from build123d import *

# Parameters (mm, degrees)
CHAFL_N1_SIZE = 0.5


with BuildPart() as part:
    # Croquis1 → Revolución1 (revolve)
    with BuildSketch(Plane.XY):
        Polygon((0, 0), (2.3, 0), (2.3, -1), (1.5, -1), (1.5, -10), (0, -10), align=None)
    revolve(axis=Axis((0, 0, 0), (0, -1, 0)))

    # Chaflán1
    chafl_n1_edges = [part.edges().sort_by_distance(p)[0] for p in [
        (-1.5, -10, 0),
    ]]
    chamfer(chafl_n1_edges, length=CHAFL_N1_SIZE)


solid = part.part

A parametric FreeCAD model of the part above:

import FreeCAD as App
import Part
import Sketcher


def edges_at(feature, points):
    """Names of the edges that pass closest to the given points."""
    edges = feature.Shape.Edges
    near = lambda p: min(range(len(edges)), key=lambda i: edges[i].distToShape(Part.Vertex(*p))[0])
    return sorted({f"Edge{near(p) + 1}" for p in points})

doc = App.newDocument("Part")
body = doc.addObject("PartDesign::Body", "Body")

sketch1 = body.newObject("Sketcher::SketchObject", "Sketch")
sketch1.AttachmentSupport = (doc.getObject("XY_Plane"), [""])
sketch1.MapMode = "FlatFace"
sketch1.addGeometry(Part.LineSegment(App.Vector(2.3, 0, 0), App.Vector(0, 0, 0)), False)
sketch1.addGeometry(Part.LineSegment(App.Vector(0, 0, 0), App.Vector(0, -10, 0)), False)
sketch1.addGeometry(Part.LineSegment(App.Vector(0, -10, 0), App.Vector(1.5, -10, 0)), False)
sketch1.addGeometry(Part.LineSegment(App.Vector(1.5, -10, 0), App.Vector(1.5, -1, 0)), False)
sketch1.addGeometry(Part.LineSegment(App.Vector(1.5, -1, 0), App.Vector(2.3, -1, 0)), False)
sketch1.addGeometry(Part.LineSegment(App.Vector(2.3, -1, 0), App.Vector(2.3, 0, 0)), False)
sketch1.addConstraint(Sketcher.Constraint("Coincident", 0, 2, 1, 1))
sketch1.addConstraint(Sketcher.Constraint("Coincident", 1, 2, 2, 1))
sketch1.addConstraint(Sketcher.Constraint("Coincident", 2, 2, 3, 1))
sketch1.addConstraint(Sketcher.Constraint("Coincident", 3, 2, 4, 1))
sketch1.addConstraint(Sketcher.Constraint("Coincident", 4, 2, 5, 1))
sketch1.addConstraint(Sketcher.Constraint("Coincident", 5, 2, 0, 1))
sketch1.addConstraint(Sketcher.Constraint("Horizontal", 0))
sketch1.addConstraint(Sketcher.Constraint("Vertical", 1))
sketch1.addConstraint(Sketcher.Constraint("Horizontal", 2))
sketch1.addConstraint(Sketcher.Constraint("Vertical", 3))
sketch1.addConstraint(Sketcher.Constraint("Horizontal", 4))
sketch1.addConstraint(Sketcher.Constraint("Vertical", 5))
sketch1.addConstraint(Sketcher.Constraint("Coincident", 0, 2, -1, 1))
sketch1.addConstraint(Sketcher.Constraint("DistanceY", 1, 2, 1, 1, 10.0))
sketch1.addConstraint(Sketcher.Constraint("DistanceY", 3, 1, 3, 2, 9.0))
sketch1.addConstraint(Sketcher.Constraint("DistanceX", 0, 2, 0, 1, 2.3))
sketch1.addConstraint(Sketcher.Constraint("DistanceX", 2, 1, 2, 2, 1.5))
revolution = body.newObject("PartDesign::Revolution", "Revolution")
revolution.Profile = sketch1
revolution.ReferenceAxis = (sketch1, ["V_Axis"])
revolution.Angle = 360
doc.recompute()

chamfer = body.newObject("PartDesign::Chamfer", "Chamfer")
chamfer.Base = (revolution, edges_at(revolution, [(-1.5, -10, 0)]))
chamfer.Size = 0.5

doc.recompute()
